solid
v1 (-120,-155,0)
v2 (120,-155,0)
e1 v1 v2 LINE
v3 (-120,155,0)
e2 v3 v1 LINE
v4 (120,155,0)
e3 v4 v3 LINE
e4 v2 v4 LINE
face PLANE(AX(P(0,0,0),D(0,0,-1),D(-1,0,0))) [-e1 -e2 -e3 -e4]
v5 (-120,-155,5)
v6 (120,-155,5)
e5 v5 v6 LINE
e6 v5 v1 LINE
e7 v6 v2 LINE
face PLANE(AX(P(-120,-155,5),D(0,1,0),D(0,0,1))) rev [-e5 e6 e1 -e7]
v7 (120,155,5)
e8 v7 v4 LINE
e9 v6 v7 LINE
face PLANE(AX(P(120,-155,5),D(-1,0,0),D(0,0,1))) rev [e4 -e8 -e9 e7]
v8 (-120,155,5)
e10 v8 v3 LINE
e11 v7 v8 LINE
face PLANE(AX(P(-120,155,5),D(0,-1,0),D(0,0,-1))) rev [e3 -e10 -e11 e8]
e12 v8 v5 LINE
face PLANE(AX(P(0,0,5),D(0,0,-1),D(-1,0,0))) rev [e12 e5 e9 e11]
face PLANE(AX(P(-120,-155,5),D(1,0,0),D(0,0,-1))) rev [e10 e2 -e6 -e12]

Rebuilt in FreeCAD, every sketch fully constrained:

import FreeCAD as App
import Part
import Sketcher

V = App.Vector
Q = App.Units.Quantity


def add_polygon(sketch, points):
    """Adds a closed chain of lines whose ends are joined by coincident constraints."""
    first, n = sketch.GeometryCount, len(points)
    for a, b in zip(points, points[1:] + points[:1]):
        sketch.addGeometry(Part.LineSegment(App.Vector(*a, 0), App.Vector(*b, 0)), False)
    for i in range(n):
        sketch.addConstraint(Sketcher.Constraint("Coincident", first + i, 2, first + (i + 1) % n, 1))

doc = App.newDocument("Part")
body = doc.addObject("PartDesign::Body", "Body")

# Sketch on XY plane
sketch1 = body.newObject("Sketcher::SketchObject", "Sketch")
sketch1.AttachmentSupport = (doc.getObject("XY_Plane"), [""])
sketch1.MapMode = "FlatFace"
add_polygon(sketch1, [(-120, 155), (-120, -155), (120, -155), (120, 155)])  # lines 0-3
sketch1.addConstraint([
    Sketcher.Constraint("Vertical", 0),
    Sketcher.Constraint("Horizontal", 1),
    Sketcher.Constraint("Vertical", 2),
    Sketcher.Constraint("Horizontal", 3),
    Sketcher.Constraint("Symmetric", 0, 2, 2, 2, -1, 1),
    Sketcher.Constraint("DistanceX", 1, 1, 1, 2, Q("240 mm")),
    Sketcher.Constraint("DistanceY", 0, 2, 0, 1, Q("310 mm")),
])
pad1 = body.newObject("PartDesign::Pad", "Pad")
pad1.Profile = sketch1
pad1.Length = 5

doc.recompute()
